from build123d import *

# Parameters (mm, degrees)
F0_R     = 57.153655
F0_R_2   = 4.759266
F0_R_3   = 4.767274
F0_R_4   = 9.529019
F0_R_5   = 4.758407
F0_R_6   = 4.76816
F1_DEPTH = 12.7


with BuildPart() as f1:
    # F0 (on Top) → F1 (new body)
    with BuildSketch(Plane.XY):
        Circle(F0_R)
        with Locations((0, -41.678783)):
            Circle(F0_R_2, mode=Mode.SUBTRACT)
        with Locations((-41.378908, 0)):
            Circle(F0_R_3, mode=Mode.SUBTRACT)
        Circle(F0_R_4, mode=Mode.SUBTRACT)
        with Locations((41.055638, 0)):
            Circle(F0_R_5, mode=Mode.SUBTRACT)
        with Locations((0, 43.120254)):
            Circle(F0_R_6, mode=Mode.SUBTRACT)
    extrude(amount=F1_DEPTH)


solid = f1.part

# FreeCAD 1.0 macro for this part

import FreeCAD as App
import Part
import Sketcher
Q = App.Units.Quantity

doc = App.newDocument("Part")
body = doc.addObject("PartDesign::Body", "Body")

# Sketch on XY plane
sketch1 = body.newObject("Sketcher::SketchObject", "Sketch")
sketch1.AttachmentSupport = (doc.getObject("XY_Plane"), [""])
sketch1.MapMode = "FlatFace"
sketch1.addGeometry([
    Part.Circle(App.Vector(0, 0, 0), App.Vector(0, 0, 1), 57.153655),  # 0
    Part.Circle(App.Vector(-41.378908, 0, 0), App.Vector(0, 0, 1), 4.767274),  # 1
    Part.Circle(App.Vector(0, -41.678783, 0), App.Vector(0, 0, 1), 4.759266),  # 2
    Part.Circle(App.Vector(0, 0, 0), App.Vector(0, 0, 1), 9.529019),  # 3
    Part.Circle(App.Vector(41.055638, 0, 0), App.Vector(0, 0, 1), 4.758407),  # 4
    Part.Circle(App.Vector(0, 43.120254, 0), App.Vector(0, 0, 1), 4.76816),  # 5
], False)
sketch1.addConstraint([
    Sketcher.Constraint("Coincident", 0, 3, -1, 1),
    Sketcher.Constraint("Coincident", 3, 3, -1, 1),
    Sketcher.Constraint("PointOnObject", 1, 3, -1),
    Sketcher.Constraint("PointOnObject", 2, 3, -2),
    Sketcher.Constraint("PointOnObject", 4, 3, -1),
    Sketcher.Constraint("PointOnObject", 5, 3, -2),
    Sketcher.Constraint("Diameter", 0, 114.30731),
    Sketcher.Constraint("Diameter", 3, 19.058038),
    Sketcher.Constraint("Diameter", 5, 9.53632),
    Sketcher.Constraint("Diameter", 1, 9.534548),
    Sketcher.Constraint("Diameter", 2, 9.518532),
    Sketcher.Constraint("Diameter", 4, 9.516814),
    Sketcher.Constraint("DistanceX", 1, 3, -1, 1, 41.378908),
    Sketcher.Constraint("DistanceX", -1, 1, 4, 3, 41.055638),
    Sketcher.Constraint("DistanceY", 2, 3, -1, 1, 41.678783),
    Sketcher.Constraint("DistanceY", -1, 1, 5, 3, 43.120254),
])
pad1 = body.newObject("PartDesign::Pad", "Pad")
pad1.Profile = sketch1
pad1.Length = Q("0.5 in")

doc.recompute()
